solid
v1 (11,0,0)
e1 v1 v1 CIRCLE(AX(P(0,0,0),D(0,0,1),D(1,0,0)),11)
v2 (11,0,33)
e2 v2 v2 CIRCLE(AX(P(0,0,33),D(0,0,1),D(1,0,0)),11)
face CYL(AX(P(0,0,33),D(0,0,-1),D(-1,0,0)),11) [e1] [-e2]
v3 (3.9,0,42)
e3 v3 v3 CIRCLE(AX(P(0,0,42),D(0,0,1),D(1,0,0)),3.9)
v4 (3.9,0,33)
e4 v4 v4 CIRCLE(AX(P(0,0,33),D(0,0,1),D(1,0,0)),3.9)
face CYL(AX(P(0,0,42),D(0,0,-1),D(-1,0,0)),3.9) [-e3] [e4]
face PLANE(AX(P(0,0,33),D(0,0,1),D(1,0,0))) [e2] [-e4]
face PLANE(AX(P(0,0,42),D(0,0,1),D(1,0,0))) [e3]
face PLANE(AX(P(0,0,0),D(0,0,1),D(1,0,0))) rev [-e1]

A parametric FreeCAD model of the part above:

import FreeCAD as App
import Part
import Sketcher

V = App.Vector

doc = App.newDocument("Part")
params = doc.addObject("Spreadsheet::Sheet", "Params")
for row, (alias, value) in enumerate([
    ("sketch1_diameter", "22 mm"),
    ("pad1_length", "33 mm"),
    ("sketch2_diameter", "7.8 mm"),
    ("pad2_length", "9 mm"),
], start=1):
    params.set(f"A{row}", alias)
    params.set(f"B{row}", "=" + value)
    params.setAlias(f"B{row}", alias)

body = doc.addObject("PartDesign::Body", "Body")

# Sketch on XY plane
sketch1 = doc.addObject("Sketcher::SketchObject", "Sketch")
body.addObject(sketch1)
sketch1.AttachmentSupport = (doc.XY_Plane, [""])
sketch1.MapMode = "FlatFace"
sketch1.addGeometry(Part.Circle(V(0, 0, 0), V(0, 0, 1), 11), False)
sketch1.addConstraint([
    Sketcher.Constraint("Coincident", 0, 3, -1, 1),
    Sketcher.Constraint("Diameter", 0, 22.0),
])
sketch1.setExpression("Constraints[1]", "Params.sketch1_diameter")
pad1 = doc.addObject("PartDesign::Pad", "Pad")
body.addObject(pad1)
pad1.Profile = sketch1
pad1.setExpression("Length", "Params.pad1_length")

# Sketch on XY plane
sketch2 = doc.addObject("Sketcher::SketchObject", "Sketch001")
body.addObject(sketch2)
sketch2.AttachmentSupport = (doc.XY_Plane, [""])
sketch2.MapMode = "FlatFace"
sketch2.AttachmentOffset = App.Placement(V(0, 0, 33), App.Rotation())
sketch2.addGeometry(Part.Circle(V(0, 0, 0), V(0, 0, 1), 3.9), False)
sketch2.addConstraint([
    Sketcher.Constraint("Coincident", 0, 3, -1, 1),
    Sketcher.Constraint("Diameter", 0, 7.8),
])
sketch2.setExpression("Constraints[1]", "Params.sketch2_diameter")
pad2 = doc.addObject("PartDesign::Pad", "Pad001")
body.addObject(pad2)
pad2.Profile = sketch2
pad2.setExpression("Length", "Params.pad2_length")

doc.recompute()
